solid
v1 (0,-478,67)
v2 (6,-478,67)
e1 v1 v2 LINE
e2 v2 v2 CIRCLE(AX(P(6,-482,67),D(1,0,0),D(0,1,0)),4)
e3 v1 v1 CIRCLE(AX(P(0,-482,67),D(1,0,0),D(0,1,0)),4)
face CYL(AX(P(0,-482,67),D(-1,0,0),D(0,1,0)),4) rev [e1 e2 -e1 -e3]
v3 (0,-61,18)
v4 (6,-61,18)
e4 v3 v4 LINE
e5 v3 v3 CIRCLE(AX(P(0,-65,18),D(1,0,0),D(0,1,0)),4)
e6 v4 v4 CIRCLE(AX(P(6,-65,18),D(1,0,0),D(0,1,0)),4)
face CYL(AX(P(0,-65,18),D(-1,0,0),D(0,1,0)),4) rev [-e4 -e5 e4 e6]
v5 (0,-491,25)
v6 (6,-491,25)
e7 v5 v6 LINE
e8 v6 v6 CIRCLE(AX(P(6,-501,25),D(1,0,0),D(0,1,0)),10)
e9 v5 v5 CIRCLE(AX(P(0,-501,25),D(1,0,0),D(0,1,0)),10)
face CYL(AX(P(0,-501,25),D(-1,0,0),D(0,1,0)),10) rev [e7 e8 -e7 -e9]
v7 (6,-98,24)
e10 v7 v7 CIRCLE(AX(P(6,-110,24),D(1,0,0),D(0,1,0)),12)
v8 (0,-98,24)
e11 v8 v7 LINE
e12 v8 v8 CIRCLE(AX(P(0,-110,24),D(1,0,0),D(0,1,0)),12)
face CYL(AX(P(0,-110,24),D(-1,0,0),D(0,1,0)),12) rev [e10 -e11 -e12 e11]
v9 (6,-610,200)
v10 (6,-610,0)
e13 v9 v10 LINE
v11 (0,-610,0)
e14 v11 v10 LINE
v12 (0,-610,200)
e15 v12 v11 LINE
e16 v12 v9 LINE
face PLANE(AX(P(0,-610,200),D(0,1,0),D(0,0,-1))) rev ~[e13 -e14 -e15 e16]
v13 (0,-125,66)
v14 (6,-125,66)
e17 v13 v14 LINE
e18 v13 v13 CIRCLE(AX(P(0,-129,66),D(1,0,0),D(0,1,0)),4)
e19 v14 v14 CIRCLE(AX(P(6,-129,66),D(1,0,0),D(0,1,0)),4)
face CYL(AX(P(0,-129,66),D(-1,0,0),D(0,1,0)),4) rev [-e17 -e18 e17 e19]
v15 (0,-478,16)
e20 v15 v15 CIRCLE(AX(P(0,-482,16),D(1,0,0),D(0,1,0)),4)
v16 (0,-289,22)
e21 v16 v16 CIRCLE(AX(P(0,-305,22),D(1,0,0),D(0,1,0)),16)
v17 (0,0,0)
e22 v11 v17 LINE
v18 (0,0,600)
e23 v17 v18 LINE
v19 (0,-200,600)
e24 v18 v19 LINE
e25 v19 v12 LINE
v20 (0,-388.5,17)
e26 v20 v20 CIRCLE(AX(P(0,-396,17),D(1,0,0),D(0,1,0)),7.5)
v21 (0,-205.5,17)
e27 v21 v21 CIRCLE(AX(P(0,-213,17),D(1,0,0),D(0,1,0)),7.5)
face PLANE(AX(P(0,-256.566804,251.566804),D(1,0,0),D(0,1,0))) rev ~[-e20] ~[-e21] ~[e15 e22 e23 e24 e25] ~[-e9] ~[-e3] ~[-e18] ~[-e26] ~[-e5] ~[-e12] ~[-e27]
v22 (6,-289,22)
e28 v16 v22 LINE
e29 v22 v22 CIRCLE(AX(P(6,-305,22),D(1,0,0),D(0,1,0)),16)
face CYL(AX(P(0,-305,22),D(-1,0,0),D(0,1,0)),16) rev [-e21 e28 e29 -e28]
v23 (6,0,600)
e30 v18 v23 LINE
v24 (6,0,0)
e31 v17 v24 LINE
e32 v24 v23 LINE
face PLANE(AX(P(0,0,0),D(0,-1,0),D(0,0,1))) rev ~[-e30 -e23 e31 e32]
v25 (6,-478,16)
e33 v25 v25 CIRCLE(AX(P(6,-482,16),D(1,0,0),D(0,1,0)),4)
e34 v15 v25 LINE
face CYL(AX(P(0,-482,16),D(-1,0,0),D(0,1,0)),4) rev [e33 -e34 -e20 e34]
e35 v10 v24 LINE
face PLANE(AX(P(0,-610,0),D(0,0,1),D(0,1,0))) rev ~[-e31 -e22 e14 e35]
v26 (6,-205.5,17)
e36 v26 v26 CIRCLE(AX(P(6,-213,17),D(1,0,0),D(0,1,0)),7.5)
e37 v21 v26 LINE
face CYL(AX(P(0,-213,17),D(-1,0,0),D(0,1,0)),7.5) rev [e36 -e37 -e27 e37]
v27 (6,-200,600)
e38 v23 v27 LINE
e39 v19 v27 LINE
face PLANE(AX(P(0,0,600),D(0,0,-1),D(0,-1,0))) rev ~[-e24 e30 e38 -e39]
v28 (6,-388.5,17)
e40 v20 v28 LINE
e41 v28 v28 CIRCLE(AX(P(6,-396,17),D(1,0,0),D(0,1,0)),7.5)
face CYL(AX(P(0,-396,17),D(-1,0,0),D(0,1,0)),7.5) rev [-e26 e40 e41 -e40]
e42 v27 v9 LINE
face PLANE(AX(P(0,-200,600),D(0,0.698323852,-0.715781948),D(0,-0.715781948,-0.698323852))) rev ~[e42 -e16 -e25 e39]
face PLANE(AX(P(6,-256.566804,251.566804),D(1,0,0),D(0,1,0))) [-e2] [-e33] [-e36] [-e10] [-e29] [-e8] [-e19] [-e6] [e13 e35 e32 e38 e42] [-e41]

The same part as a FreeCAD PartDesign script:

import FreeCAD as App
import Part
import Sketcher

V = App.Vector
Q = App.Units.Quantity

doc = App.newDocument("Part")
body = doc.addObject("PartDesign::Body", "Body")

# Sketch on YZ plane
sketch1 = body.newObject("Sketcher::SketchObject", "Sketch")
sketch1.AttachmentSupport = (doc.getObject("YZ_Plane"), [""])
sketch1.MapMode = "FlatFace"
sketch1.addGeometry([
    Part.LineSegment(V(0, 0, 0), V(0, 600, 0)),  # 0
    Part.LineSegment(V(0, 600, 0), V(-200, 600, 0)),  # 1
    Part.LineSegment(V(-200, 600, 0), V(-610, 200, 0)),  # 2
    Part.LineSegment(V(-610, 200, 0), V(-610, 0, 0)),  # 3
    Part.LineSegment(V(-610, 0, 0), V(0, 0, 0)),  # 4
    Part.Circle(V(-482, 16, 0), V(0, 0, 1), 4),  # 5
    Part.Circle(V(-396, 17, 0), V(0, 0, 1), 7.5),  # 6
    Part.Circle(V(-305, 22, 0), V(0, 0, 1), 16),  # 7
    Part.Circle(V(-501, 25, 0), V(0, 0, 1), 10),  # 8
    Part.Circle(V(-213, 17, 0), V(0, 0, 1), 7.5),  # 9
    Part.Circle(V(-65, 18, 0), V(0, 0, 1), 4),  # 10
    Part.Circle(V(-110, 24, 0), V(0, 0, 1), 12),  # 11
    Part.Circle(V(-482, 67, 0), V(0, 0, 1), 4),  # 12
    Part.Circle(V(-129, 66, 0), V(0, 0, 1), 4),  # 13
], False)
sketch1.addConstraint([
    Sketcher.Constraint("Coincident", 0, 2, 1, 1),
    Sketcher.Constraint("Coincident", 1, 2, 2, 1),
    Sketcher.Constraint("Coincident", 2, 2, 3, 1),
    Sketcher.Constraint("Coincident", 3, 2, 4, 1),
    Sketcher.Constraint("Coincident", 4, 2, 0, 1),
    Sketcher.Constraint("Vertical", 0),
    Sketcher.Constraint("Horizontal", 1),
    Sketcher.Constraint("Vertical", 3),
    Sketcher.Constraint("Horizontal", 4),
    Sketcher.Constraint("Coincident", 4, 2, -1, 1),
    Sketcher.Constraint("Equal", 6, 9),
    Sketcher.Constraint("Equal", 5, 10),
    Sketcher.Constraint("Equal", 10, 12),
    Sketcher.Constraint("Equal", 12, 13),
    Sketcher.Constraint("Horizontal", 6, 3, 9, 3),
    Sketcher.Constraint("Vertical", 5, 3, 12, 3),
    Sketcher.Constraint("Equal", 1, 3),
    Sketcher.Constraint("Diameter", 5, Q("8 mm")),
    Sketcher.Constraint("Diameter", 6, Q("15 mm")),
    Sketcher.Constraint("Diameter", 7, Q("32 mm")),
    Sketcher.Constraint("Diameter", 8, Q("20 mm")),
    Sketcher.Constraint("Diameter", 11, Q("24 mm")),
    Sketcher.Constraint("DistanceX", 1, 2, 1, 1, Q("200 mm")),
    Sketcher.Constraint("DistanceX", 4, 1, 4, 2, Q("610 mm")),
    Sketcher.Constraint("DistanceY", 0, 1, 0, 2, Q("600 mm")),
    Sketcher.Constraint("DistanceX", 5, 3, -1, 1, Q("482 mm")),
    Sketcher.Constraint("DistanceY", -1, 1, 5, 3, Q("16 mm")),
    Sketcher.Constraint("DistanceX", 6, 3, -1, 1, Q("396 mm")),
    Sketcher.Constraint("DistanceY", -1, 1, 6, 3, Q("17 mm")),
    Sketcher.Constraint("DistanceX", 7, 3, -1, 1, Q("305 mm")),
    Sketcher.Constraint("DistanceY", -1, 1, 7, 3, Q("22 mm")),
    Sketcher.Constraint("DistanceX", 8, 3, -1, 1, Q("501 mm")),
    Sketcher.Constraint("DistanceY", -1, 1, 8, 3, Q("25 mm")),
    Sketcher.Constraint("DistanceX", 9, 3, -1, 1, Q("213 mm")),
    Sketcher.Constraint("DistanceX", 10, 3, -1, 1, Q("65 mm")),
    Sketcher.Constraint("DistanceY", -1, 1, 10, 3, Q("18 mm")),
    Sketcher.Constraint("DistanceX", 11, 3, -1, 1, Q("110 mm")),
    Sketcher.Constraint("DistanceY", -1, 1, 11, 3, Q("24 mm")),
    Sketcher.Constraint("DistanceY", -1, 1, 12, 3, Q("67 mm")),
    Sketcher.Constraint("DistanceX", 13, 3, -1, 1, Q("129 mm")),
    Sketcher.Constraint("DistanceY", -1, 1, 13, 3, Q("66 mm")),
])
pad1 = body.newObject("PartDesign::Pad", "Pad")
pad1.Profile = sketch1
pad1.Length = 6

doc.recompute()
